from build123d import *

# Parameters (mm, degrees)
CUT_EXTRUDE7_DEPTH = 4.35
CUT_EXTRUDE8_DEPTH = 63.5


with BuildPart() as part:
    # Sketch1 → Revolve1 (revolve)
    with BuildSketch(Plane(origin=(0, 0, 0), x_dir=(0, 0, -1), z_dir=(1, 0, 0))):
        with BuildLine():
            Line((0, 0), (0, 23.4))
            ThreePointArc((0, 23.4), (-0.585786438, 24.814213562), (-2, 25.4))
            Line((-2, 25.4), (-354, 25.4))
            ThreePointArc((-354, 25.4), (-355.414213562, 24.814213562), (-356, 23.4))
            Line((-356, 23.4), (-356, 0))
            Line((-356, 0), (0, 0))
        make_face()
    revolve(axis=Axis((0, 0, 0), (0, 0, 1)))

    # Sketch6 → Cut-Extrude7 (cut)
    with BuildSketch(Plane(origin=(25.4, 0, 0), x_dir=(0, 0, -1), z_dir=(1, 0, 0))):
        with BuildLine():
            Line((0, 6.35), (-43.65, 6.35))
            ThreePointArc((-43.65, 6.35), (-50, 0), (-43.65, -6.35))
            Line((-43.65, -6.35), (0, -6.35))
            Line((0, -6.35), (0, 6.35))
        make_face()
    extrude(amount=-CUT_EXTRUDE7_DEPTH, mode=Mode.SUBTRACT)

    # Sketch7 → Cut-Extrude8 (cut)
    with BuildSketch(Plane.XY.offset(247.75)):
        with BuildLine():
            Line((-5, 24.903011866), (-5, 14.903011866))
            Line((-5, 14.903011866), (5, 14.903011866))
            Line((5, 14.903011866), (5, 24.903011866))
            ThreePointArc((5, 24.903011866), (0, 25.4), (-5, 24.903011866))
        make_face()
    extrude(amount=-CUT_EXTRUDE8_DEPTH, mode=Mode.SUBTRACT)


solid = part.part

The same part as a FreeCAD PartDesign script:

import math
import FreeCAD as App
import Part
import Sketcher

doc = App.newDocument("Part")
body = doc.addObject("PartDesign::Body", "Body")

# Sketch on YZ plane
sketch1 = body.newObject("Sketcher::SketchObject", "Sketch")
sketch1.AttachmentSupport = (doc.getObject("YZ_Plane"), [""])
sketch1.MapMode = "FlatFace"
sketch1.addGeometry(Part.LineSegment(App.Vector(0, 0, 0), App.Vector(23.4, 0, 0)), False)
sketch1.addGeometry(Part.ArcOfCircle(Part.Circle(App.Vector(23.4, 2, 0), App.Vector(0, 0, 1), 2), math.radians(-90), math.radians(0)), False)
sketch1.addGeometry(Part.LineSegment(App.Vector(25.4, 2, 0), App.Vector(25.4, 354, 0)), False)
sketch1.addGeometry(Part.ArcOfCircle(Part.Circle(App.Vector(23.4, 354, 0), App.Vector(0, 0, 1), 2), math.radians(0), math.radians(90)), False)
sketch1.addGeometry(Part.LineSegment(App.Vector(23.4, 356, 0), App.Vector(0, 356, 0)), False)
sketch1.addGeometry(Part.LineSegment(App.Vector(0, 356, 0), App.Vector(0, 0, 0)), False)
sketch1.addConstraint(Sketcher.Constraint("Tangent", 0, 2, 1, 1))
sketch1.addConstraint(Sketcher.Constraint("Tangent", 1, 2, 2, 1))
sketch1.addConstraint(Sketcher.Constraint("Tangent", 2, 2, 3, 1))
sketch1.addConstraint(Sketcher.Constraint("Tangent", 3, 2, 4, 1))
sketch1.addConstraint(Sketcher.Constraint("Coincident", 4, 2, 5, 1))
sketch1.addConstraint(Sketcher.Constraint("Coincident", 5, 2, 0, 1))
sketch1.addConstraint(Sketcher.Constraint("Horizontal", 0))
sketch1.addConstraint(Sketcher.Constraint("Vertical", 2))
sketch1.addConstraint(Sketcher.Constraint("Horizontal", 4))
sketch1.addConstraint(Sketcher.Constraint("Vertical", 5))
sketch1.addConstraint(Sketcher.Constraint("Coincident", 5, 2, -1, 1))
sketch1.addConstraint(Sketcher.Constraint("Equal", 1, 3))
sketch1.addConstraint(Sketcher.Constraint("Radius", 1, 2.0))
sketch1.addConstraint(Sketcher.Constraint("DistanceY", 2, 1, 2, 2, 352.0))
sketch1.addConstraint(Sketcher.Constraint("DistanceX", 0, 1, 0, 2, 23.4))
revolution = body.newObject("PartDesign::Revolution", "Revolution")
revolution.Profile = sketch1
revolution.ReferenceAxis = (sketch1, ["V_Axis"])
revolution.Angle = 360

# Sketch on YZ plane
sketch2 = body.newObject("Sketcher::SketchObject", "Sketch001")
sketch2.AttachmentSupport = (doc.getObject("YZ_Plane"), [""])
sketch2.MapMode = "FlatFace"
sketch2.AttachmentOffset = App.Placement(App.Vector(0, 0, 25.4), App.Rotation())
sketch2.addGeometry(Part.LineSegment(App.Vector(6.35, 0, 0), App.Vector(6.35, 43.65, 0)), False)
sketch2.addGeometry(Part.ArcOfCircle(Part.Circle(App.Vector(0, 43.65, 0), App.Vector(0, 0, 1), 6.35), math.radians(0), math.radians(180)), False)
sketch2.addGeometry(Part.LineSegment(App.Vector(-6.35, 43.65, 0), App.Vector(-6.35, 0, 0)), False)
sketch2.addGeometry(Part.LineSegment(App.Vector(-6.35, 0, 0), App.Vector(6.35, 0, 0)), False)
sketch2.addConstraint(Sketcher.Constraint("Tangent", 0, 2, 1, 1))
sketch2.addConstraint(Sketcher.Constraint("Tangent", 1, 2, 2, 1))
sketch2.addConstraint(Sketcher.Constraint("Coincident", 2, 2, 3, 1))
sketch2.addConstraint(Sketcher.Constraint("Coincident", 3, 2, 0, 1))
sketch2.addConstraint(Sketcher.Constraint("Vertical", 0))
sketch2.addConstraint(Sketcher.Constraint("Vertical", 2))
sketch2.addConstraint(Sketcher.Constraint("Horizontal", 3))
sketch2.addConstraint(Sketcher.Constraint("Symmetric", 2, 2, 3, 2, -1, 1))
sketch2.addConstraint(Sketcher.Constraint("Radius", 1, 6.35))
sketch2.addConstraint(Sketcher.Constraint("DistanceY", 0, 1, 0, 2, 43.65))
pocket1 = body.newObject("PartDesign::Pocket", "Pocket")
pocket1.Profile = sketch2
pocket1.Length = 4.35

# Sketch on XY plane
sketch3 = body.newObject("Sketcher::SketchObject", "Sketch002")
sketch3.AttachmentSupport = (doc.getObject("XY_Plane"), [""])
sketch3.MapMode = "FlatFace"
sketch3.AttachmentOffset = App.Placement(App.Vector(0, 0, 247.75), App.Rotation())
sketch3.addGeometry(Part.LineSegment(App.Vector(-5, 24.903012, 0), App.Vector(-5, 14.903012, 0)), False)
sketch3.addGeometry(Part.LineSegment(App.Vector(-5, 14.903012, 0), App.Vector(5, 14.903012, 0)), False)
sketch3.addGeometry(Part.LineSegment(App.Vector(5, 14.903012, 0), App.Vector(5, 24.903012, 0)), False)
sketch3.addGeometry(Part.ArcOfCircle(Part.Circle(App.Vector(0, 0, 0), App.Vector(0, 0, 1), 25.4), math.radians(78.647161), math.radians(101.352839)), False)
sketch3.addConstraint(Sketcher.Constraint("Coincident", 0, 2, 1, 1))
sketch3.addConstraint(Sketcher.Constraint("Coincident", 1, 2, 2, 1))
sketch3.addConstraint(Sketcher.Constraint("Coincident", 2, 2, 3, 1))
sketch3.addConstraint(Sketcher.Constraint("Coincident", 3, 2, 0, 1))
sketch3.addConstraint(Sketcher.Constraint("Vertical", 0))
sketch3.addConstraint(Sketcher.Constraint("Horizontal", 1))
sketch3.addConstraint(Sketcher.Constraint("Vertical", 2))
sketch3.addConstraint(Sketcher.Constraint("Coincident", 3, 3, -1, 1))
sketch3.addConstraint(Sketcher.Constraint("Horizontal", 2, 2, 3, 2))
sketch3.addConstraint(Sketcher.Constraint("Equal", 1, 0))
sketch3.addConstraint(Sketcher.Constraint("Radius", 3, 25.4))
sketch3.addConstraint(Sketcher.Constraint("DistanceX", 1, 1, 1, 2, 10.0))
pocket2 = body.newObject("PartDesign::Pocket", "Pocket001")
pocket2.Profile = sketch3
pocket2.Length = 63.5

doc.recompute()
